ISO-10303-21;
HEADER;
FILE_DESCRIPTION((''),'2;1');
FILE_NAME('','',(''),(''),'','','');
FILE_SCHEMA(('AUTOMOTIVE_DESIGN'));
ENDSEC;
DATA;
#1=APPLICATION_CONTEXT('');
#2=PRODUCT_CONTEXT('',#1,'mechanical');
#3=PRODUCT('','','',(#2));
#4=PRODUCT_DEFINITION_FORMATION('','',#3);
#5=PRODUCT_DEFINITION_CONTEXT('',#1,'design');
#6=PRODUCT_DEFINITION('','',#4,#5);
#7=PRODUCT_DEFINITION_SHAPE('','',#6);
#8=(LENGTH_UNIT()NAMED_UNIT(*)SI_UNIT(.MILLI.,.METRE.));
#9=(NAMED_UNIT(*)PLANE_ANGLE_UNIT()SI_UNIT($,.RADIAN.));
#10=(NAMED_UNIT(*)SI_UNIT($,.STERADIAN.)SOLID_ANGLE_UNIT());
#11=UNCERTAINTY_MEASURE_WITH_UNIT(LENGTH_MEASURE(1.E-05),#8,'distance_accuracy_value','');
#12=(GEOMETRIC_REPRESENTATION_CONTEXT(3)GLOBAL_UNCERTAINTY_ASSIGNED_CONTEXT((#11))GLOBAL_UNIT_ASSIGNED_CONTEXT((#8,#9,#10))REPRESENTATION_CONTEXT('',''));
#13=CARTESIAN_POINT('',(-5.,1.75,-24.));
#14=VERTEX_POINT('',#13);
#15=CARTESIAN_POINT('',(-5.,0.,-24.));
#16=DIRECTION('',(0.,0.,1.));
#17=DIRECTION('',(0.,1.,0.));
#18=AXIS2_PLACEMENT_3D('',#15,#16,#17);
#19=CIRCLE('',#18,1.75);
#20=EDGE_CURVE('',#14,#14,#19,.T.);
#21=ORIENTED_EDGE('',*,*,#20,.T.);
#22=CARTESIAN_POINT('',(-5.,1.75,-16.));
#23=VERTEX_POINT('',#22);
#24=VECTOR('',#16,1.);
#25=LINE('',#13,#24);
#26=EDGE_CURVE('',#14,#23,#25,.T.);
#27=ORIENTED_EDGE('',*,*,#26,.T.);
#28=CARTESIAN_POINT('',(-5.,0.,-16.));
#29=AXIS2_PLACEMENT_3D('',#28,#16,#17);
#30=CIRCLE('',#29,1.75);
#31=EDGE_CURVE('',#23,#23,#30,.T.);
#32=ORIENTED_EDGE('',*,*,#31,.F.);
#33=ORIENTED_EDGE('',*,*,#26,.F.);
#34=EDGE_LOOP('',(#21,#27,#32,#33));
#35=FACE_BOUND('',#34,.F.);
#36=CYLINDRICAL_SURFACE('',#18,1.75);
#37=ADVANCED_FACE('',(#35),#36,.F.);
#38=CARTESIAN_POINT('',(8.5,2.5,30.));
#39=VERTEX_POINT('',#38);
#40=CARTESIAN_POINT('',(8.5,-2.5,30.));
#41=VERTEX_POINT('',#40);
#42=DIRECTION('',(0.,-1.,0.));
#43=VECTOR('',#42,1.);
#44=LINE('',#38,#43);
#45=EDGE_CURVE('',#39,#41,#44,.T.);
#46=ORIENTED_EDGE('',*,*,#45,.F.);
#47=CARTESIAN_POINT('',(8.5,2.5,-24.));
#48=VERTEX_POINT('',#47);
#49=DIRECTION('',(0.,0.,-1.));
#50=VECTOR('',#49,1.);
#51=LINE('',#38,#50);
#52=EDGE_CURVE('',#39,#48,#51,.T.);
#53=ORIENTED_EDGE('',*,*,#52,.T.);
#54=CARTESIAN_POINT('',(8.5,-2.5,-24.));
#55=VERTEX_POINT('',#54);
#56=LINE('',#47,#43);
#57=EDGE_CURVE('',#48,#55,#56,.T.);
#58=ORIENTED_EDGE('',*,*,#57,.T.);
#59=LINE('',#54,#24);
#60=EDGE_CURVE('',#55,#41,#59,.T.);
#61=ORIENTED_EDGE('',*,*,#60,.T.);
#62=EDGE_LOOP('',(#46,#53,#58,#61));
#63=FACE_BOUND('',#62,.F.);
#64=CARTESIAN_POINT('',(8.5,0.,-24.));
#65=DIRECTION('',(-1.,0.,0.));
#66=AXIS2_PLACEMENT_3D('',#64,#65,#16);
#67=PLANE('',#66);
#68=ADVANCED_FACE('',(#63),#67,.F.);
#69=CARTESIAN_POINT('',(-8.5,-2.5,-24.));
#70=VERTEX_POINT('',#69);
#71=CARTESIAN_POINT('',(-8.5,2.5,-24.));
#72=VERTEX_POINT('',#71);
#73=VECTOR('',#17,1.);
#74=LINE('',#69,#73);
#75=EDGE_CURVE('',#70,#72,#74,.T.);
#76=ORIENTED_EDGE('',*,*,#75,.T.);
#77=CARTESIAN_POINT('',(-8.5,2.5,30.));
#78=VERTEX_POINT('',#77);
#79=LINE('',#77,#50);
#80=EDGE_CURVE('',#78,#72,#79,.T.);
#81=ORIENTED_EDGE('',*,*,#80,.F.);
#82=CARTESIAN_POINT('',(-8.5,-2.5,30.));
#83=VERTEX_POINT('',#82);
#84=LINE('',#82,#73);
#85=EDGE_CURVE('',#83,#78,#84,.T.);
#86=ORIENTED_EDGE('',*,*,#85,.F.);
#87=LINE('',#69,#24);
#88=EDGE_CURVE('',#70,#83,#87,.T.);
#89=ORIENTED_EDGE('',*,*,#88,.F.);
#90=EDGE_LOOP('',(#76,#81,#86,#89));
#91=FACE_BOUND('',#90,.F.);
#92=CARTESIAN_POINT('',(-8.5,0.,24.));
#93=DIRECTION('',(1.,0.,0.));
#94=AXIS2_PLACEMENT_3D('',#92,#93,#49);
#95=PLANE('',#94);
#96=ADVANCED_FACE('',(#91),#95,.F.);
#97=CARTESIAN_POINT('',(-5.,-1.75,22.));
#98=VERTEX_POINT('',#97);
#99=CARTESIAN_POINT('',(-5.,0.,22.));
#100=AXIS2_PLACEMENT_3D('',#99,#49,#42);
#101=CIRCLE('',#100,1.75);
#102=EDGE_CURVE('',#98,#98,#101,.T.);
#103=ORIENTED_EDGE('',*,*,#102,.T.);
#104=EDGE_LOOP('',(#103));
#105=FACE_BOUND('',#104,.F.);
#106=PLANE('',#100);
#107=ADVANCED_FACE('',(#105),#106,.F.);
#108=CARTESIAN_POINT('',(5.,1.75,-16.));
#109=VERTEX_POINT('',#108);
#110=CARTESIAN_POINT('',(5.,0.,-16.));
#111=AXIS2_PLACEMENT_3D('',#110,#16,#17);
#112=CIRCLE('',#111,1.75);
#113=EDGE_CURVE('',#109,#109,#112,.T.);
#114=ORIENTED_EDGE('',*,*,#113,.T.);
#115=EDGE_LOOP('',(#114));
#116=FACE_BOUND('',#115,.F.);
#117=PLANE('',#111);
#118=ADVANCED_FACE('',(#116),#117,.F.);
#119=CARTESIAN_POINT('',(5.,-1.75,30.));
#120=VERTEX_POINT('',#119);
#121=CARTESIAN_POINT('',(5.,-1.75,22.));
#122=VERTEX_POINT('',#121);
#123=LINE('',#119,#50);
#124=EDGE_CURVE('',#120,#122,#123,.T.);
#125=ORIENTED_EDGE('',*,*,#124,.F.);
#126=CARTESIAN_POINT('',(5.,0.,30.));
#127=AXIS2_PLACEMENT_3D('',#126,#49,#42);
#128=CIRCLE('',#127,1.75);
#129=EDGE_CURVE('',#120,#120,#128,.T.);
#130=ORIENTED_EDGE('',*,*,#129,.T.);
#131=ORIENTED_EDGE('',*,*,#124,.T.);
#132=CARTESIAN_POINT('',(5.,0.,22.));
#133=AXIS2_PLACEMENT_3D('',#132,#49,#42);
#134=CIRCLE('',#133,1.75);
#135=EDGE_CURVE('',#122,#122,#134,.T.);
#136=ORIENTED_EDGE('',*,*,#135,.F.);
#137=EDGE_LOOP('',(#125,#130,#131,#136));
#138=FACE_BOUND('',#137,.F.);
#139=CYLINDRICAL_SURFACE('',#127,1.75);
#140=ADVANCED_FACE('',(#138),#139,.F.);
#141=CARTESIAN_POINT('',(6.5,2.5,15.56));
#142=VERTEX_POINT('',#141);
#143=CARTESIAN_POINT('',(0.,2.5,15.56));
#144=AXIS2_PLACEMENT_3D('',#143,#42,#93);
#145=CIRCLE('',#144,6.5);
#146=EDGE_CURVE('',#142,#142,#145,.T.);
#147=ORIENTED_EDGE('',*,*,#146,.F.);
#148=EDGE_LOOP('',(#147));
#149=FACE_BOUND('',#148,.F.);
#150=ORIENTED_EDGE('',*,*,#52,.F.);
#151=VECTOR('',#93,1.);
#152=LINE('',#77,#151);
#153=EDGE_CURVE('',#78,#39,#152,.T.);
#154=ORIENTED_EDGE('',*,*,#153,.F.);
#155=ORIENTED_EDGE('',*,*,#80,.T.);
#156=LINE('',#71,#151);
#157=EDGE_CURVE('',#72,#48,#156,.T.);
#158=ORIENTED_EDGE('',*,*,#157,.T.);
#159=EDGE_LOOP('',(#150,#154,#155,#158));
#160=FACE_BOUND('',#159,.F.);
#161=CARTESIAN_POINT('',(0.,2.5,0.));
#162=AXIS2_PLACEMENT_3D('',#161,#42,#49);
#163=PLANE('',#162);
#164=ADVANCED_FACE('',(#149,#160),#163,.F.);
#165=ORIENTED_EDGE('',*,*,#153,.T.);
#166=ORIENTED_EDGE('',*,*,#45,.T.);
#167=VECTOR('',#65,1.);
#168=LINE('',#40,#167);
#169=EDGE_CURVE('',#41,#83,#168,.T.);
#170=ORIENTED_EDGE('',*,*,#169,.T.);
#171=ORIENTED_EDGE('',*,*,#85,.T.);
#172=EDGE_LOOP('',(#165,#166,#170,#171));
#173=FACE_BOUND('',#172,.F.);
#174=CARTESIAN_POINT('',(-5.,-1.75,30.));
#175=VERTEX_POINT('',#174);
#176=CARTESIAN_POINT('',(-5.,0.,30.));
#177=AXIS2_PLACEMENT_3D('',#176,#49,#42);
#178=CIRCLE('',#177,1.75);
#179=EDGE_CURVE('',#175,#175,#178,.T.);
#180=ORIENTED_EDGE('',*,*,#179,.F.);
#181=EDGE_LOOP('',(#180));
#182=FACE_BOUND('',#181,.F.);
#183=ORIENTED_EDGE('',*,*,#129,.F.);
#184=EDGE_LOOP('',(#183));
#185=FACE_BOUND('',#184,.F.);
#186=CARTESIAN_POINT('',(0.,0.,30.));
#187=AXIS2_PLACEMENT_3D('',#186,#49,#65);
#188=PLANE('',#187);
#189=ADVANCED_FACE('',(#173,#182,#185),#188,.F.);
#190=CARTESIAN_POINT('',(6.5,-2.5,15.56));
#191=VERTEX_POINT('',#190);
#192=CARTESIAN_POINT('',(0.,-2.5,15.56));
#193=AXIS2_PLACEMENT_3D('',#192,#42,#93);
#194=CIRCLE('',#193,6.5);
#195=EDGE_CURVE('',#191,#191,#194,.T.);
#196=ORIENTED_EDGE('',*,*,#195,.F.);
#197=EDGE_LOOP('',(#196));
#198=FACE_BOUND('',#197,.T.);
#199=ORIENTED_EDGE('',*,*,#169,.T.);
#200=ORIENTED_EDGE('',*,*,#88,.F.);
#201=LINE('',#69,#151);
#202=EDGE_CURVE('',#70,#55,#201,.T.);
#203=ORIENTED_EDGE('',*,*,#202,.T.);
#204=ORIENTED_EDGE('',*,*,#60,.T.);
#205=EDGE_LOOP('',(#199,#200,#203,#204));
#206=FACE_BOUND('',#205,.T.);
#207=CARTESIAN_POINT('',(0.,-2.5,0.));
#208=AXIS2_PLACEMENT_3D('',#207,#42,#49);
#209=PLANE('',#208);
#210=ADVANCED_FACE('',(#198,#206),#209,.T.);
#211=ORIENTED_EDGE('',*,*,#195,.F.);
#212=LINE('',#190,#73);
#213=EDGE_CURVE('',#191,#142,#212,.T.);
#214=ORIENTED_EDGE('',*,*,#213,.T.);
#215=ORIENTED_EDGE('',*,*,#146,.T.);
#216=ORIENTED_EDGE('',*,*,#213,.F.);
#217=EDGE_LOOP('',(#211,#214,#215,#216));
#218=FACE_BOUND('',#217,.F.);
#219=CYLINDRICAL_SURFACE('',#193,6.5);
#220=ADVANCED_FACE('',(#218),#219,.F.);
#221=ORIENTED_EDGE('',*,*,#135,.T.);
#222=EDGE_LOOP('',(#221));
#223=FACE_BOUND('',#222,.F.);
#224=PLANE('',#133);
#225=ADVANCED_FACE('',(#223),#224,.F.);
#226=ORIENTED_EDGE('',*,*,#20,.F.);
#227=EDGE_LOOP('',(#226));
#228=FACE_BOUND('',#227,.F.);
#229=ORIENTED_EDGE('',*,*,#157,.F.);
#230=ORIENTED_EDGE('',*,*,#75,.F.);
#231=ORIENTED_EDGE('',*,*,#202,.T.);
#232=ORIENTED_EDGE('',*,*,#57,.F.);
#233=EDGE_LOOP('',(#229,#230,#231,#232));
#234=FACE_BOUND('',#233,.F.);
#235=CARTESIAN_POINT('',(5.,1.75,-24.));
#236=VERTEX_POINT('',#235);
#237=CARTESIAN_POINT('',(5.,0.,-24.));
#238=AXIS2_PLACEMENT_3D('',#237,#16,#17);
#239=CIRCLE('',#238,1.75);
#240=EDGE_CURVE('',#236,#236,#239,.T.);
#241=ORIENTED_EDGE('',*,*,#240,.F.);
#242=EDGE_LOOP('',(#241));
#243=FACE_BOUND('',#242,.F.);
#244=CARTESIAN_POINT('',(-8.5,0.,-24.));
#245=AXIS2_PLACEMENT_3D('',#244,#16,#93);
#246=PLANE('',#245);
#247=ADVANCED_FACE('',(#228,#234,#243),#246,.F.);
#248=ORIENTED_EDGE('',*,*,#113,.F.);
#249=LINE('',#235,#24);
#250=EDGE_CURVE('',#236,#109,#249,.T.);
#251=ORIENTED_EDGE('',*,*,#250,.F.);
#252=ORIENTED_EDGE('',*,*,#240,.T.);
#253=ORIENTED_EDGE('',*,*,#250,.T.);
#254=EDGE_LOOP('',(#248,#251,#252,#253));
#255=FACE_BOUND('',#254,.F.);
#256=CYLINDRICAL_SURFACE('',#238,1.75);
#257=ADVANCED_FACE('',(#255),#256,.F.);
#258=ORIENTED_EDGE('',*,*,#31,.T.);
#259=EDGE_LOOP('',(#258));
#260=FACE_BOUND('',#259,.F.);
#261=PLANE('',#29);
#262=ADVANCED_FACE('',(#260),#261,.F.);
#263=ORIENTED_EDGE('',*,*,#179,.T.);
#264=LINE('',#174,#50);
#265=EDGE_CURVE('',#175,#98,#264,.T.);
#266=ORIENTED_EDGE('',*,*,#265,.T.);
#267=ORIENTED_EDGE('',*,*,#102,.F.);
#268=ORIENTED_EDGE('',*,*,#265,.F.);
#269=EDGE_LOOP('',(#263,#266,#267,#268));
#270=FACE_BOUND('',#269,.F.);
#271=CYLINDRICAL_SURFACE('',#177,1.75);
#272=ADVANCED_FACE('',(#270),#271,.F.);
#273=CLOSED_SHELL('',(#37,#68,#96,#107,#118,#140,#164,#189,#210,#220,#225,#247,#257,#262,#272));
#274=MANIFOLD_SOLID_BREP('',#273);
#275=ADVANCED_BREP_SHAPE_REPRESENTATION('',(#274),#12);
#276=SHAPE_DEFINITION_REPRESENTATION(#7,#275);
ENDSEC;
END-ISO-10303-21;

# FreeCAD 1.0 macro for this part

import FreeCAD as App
import Part
import Sketcher

V = App.Vector

doc = App.newDocument("Part")
params = doc.addObject("Spreadsheet::Sheet", "Params")
for row, (alias, value) in enumerate([
    ("sketch1_height", "48 mm"),
    ("pad1_length", "5 mm"),
    ("sketch2_diameter", "13 mm"),
    ("pocket1_length", "64 mm"),
    ("sketch3_diameter", "3.5 mm"),
    ("hole_diameter", "3.5 mm"),
    ("hole_depth", "8 mm"),
    ("sketch4_diameter", "3.5 mm"),
    ("hole2_diameter", "3.5 mm"),
    ("hole2_depth", "8 mm"),
    ("sketch5_width", "17 mm"),
    ("sketch5_height", "5 mm"),
    ("pad2_length", "6 mm"),
    ("sketch6_diameter", "3.5 mm"),
    ("hole3_diameter", "3.5 mm"),
    ("hole3_depth", "8 mm"),
    ("sketch7_diameter", "3.5 mm"),
    ("hole4_diameter", "3.5 mm"),
    ("hole4_depth", "8 mm"),
], start=1):
    params.set(f"A{row}", alias)
    params.set(f"B{row}", "=" + value)
    params.setAlias(f"B{row}", alias)

body = doc.addObject("PartDesign::Body", "Body")

sketch1 = body.newObject("Sketcher::SketchObject", "Sketch")
sketch1.AttachmentSupport = (doc.getObject("XZ_Plane"), [""])
sketch1.MapMode = "FlatFace"
sketch1.addGeometry([
    Part.LineSegment(V(-8.5, 24, 0), V(-8.5, -24, 0)),
    Part.LineSegment(V(-8.5, -24, 0), V(8.5, -24, 0)),
    Part.LineSegment(V(8.5, -24, 0), V(8.5, 24, 0)),
    Part.LineSegment(V(8.5, 24, 0), V(-8.5, 24, 0)),
], False)
sketch1.addConstraint([
    Sketcher.Constraint("Coincident", 0, 2, 1, 1),
    Sketcher.Constraint("Coincident", 1, 2, 2, 1),
    Sketcher.Constraint("Coincident", 2, 2, 3, 1),
    Sketcher.Constraint("Coincident", 3, 2, 0, 1),
    Sketcher.Constraint("Vertical", 0),
    Sketcher.Constraint("Horizontal", 1),
    Sketcher.Constraint("Vertical", 2),
    Sketcher.Constraint("Horizontal", 3),
    Sketcher.Constraint("Symmetric", 0, 2, 2, 2, -1, 1),
    Sketcher.Constraint("DistanceX", 0, 2, -1, 1, 8.5),
    Sketcher.Constraint("DistanceY", 0, 2, 0, 1, 48.0),
])
sketch1.setExpression("Constraints[10]", "Params.sketch1_height")
pad1 = body.newObject("PartDesign::Pad", "Pad")
pad1.Profile = sketch1
pad1.setExpression("Length", "Params.pad1_length")
pad1.Midplane = True

sketch2 = body.newObject("Sketcher::SketchObject", "Sketch001")
sketch2.AttachmentSupport = (doc.getObject("XZ_Plane"), [""])
sketch2.MapMode = "FlatFace"
sketch2.AttachmentOffset = App.Placement(V(0, 0, 2.5), App.Rotation())
sketch2.addGeometry(Part.Circle(V(0, 15.56, 0), V(0, 0, 1), 6.5), False)
sketch2.addConstraint([
    Sketcher.Constraint("PointOnObject", 0, 3, -2),
    Sketcher.Constraint("Diameter", 0, 13.0),
    Sketcher.Constraint("DistanceY", -1, 1, 0, 3, 15.56),
])
sketch2.setExpression("Constraints[1]", "Params.sketch2_diameter")
pocket1 = body.newObject("PartDesign::Pocket", "Pocket")
pocket1.Profile = sketch2
pocket1.setExpression("Length", "Params.pocket1_length")

sketch3 = body.newObject("Sketcher::SketchObject", "Sketch002")
sketch3.AttachmentSupport = (doc.getObject("XY_Plane"), [""])
sketch3.MapMode = "FlatFace"
sketch3.AttachmentOffset = App.Placement(V(0, 0, -24), App.Rotation())
sketch3.addGeometry(Part.Circle(V(-5, 0, 0), V(0, 0, 1), 1.75), False)
sketch3.addConstraint([
    Sketcher.Constraint("PointOnObject", 0, 3, -1),
    Sketcher.Constraint("Diameter", 0, 3.5),
    Sketcher.Constraint("DistanceX", 0, 3, -1, 1, 5.0),
])
sketch3.setExpression("Constraints[1]", "Params.sketch3_diameter")
doc.recompute()
hole = body.newObject("PartDesign::Hole", "Hole")
hole.Profile = sketch3
hole.ThreadType = "None"
hole.setExpression("Diameter", "Params.hole_diameter")
hole.DepthType = "Dimension"
hole.setExpression("Depth", "Params.hole_depth")
hole.DrillPoint = "Flat"
hole.Reversed = True

sketch4 = body.newObject("Sketcher::SketchObject", "Sketch003")
sketch4.AttachmentSupport = (doc.getObject("XY_Plane"), [""])
sketch4.MapMode = "FlatFace"
sketch4.AttachmentOffset = App.Placement(V(0, 0, -24), App.Rotation())
sketch4.addGeometry(Part.Circle(V(5, 0, 0), V(0, 0, 1), 1.75), False)
sketch4.addConstraint([
    Sketcher.Constraint("PointOnObject", 0, 3, -1),
    Sketcher.Constraint("Diameter", 0, 3.5),
    Sketcher.Constraint("DistanceX", -1, 1, 0, 3, 5.0),
])
sketch4.setExpression("Constraints[1]", "Params.sketch4_diameter")
doc.recompute()
hole2 = body.newObject("PartDesign::Hole", "Hole001")
hole2.Profile = sketch4
hole2.ThreadType = "None"
hole2.setExpression("Diameter", "Params.hole2_diameter")
hole2.DepthType = "Dimension"
hole2.setExpression("Depth", "Params.hole2_depth")
hole2.DrillPoint = "Flat"
hole2.Reversed = True

sketch5 = body.newObject("Sketcher::SketchObject", "Sketch004")
sketch5.AttachmentSupport = (doc.getObject("XY_Plane"), [""])
sketch5.MapMode = "FlatFace"
sketch5.AttachmentOffset = App.Placement(V(0, 0, 24), App.Rotation())
sketch5.addGeometry([
    Part.LineSegment(V(8.5, 2.5, 0), V(-8.5, 2.5, 0)),
    Part.LineSegment(V(-8.5, 2.5, 0), V(-8.5, -2.5, 0)),
    Part.LineSegment(V(-8.5, -2.5, 0), V(8.5, -2.5, 0)),
    Part.LineSegment(V(8.5, -2.5, 0), V(8.5, 2.5, 0)),
], False)
sketch5.addConstraint([
    Sketcher.Constraint("Coincident", 0, 2, 1, 1),
    Sketcher.Constraint("Coincident", 1, 2, 2, 1),
    Sketcher.Constraint("Coincident", 2, 2, 3, 1),
    Sketcher.Constraint("Coincident", 3, 2, 0, 1),
    Sketcher.Constraint("Horizontal", 0),
    Sketcher.Constraint("Vertical", 1),
    Sketcher.Constraint("Horizontal", 2),
    Sketcher.Constraint("Vertical", 3),
    Sketcher.Constraint("Symmetric", 0, 2, 2, 2, -1, 1),
    Sketcher.Constraint("DistanceX", 0, 2, 0, 1, 17.0),
    Sketcher.Constraint("DistanceY", 1, 2, 1, 1, 5.0),
])
sketch5.setExpression("Constraints[9]", "Params.sketch5_width")
sketch5.setExpression("Constraints[10]", "Params.sketch5_height")
pad2 = body.newObject("PartDesign::Pad", "Pad001")
pad2.Profile = sketch5
pad2.setExpression("Length", "Params.pad2_length")

sketch6 = body.newObject("Sketcher::SketchObject", "Sketch005")
sketch6.AttachmentSupport = (doc.getObject("XY_Plane"), [""])
sketch6.MapMode = "FlatFace"
sketch6.AttachmentOffset = App.Placement(V(0, 0, 30), App.Rotation())
sketch6.addGeometry(Part.Circle(V(-5, 0, 0), V(0, 0, 1), 1.75), False)
sketch6.addConstraint([
    Sketcher.Constraint("PointOnObject", 0, 3, -1),
    Sketcher.Constraint("Diameter", 0, 3.5),
    Sketcher.Constraint("DistanceX", 0, 3, -1, 1, 5.0),
])
sketch6.setExpression("Constraints[1]", "Params.sketch6_diameter")
doc.recompute()
hole3 = body.newObject("PartDesign::Hole", "Hole002")
hole3.Profile = sketch6
hole3.ThreadType = "None"
hole3.setExpression("Diameter", "Params.hole3_diameter")
hole3.DepthType = "Dimension"
hole3.setExpression("Depth", "Params.hole3_depth")
hole3.DrillPoint = "Flat"

sketch7 = body.newObject("Sketcher::SketchObject", "Sketch006")
sketch7.AttachmentSupport = (doc.getObject("XY_Plane"), [""])
sketch7.MapMode = "FlatFace"
sketch7.AttachmentOffset = App.Placement(V(0, 0, 30), App.Rotation())
sketch7.addGeometry(Part.Circle(V(5, 0, 0), V(0, 0, 1), 1.75), False)
sketch7.addConstraint([
    Sketcher.Constraint("PointOnObject", 0, 3, -1),
    Sketcher.Constraint("Diameter", 0, 3.5),
    Sketcher.Constraint("DistanceX", -1, 1, 0, 3, 5.0),
])
sketch7.setExpression("Constraints[1]", "Params.sketch7_diameter")
doc.recompute()
hole4 = body.newObject("PartDesign::Hole", "Hole003")
hole4.Profile = sketch7
hole4.ThreadType = "None"
hole4.setExpression("Diameter", "Params.hole4_diameter")
hole4.DepthType = "Dimension"
hole4.setExpression("Depth", "Params.hole4_depth")
hole4.DrillPoint = "Flat"

doc.recompute()
